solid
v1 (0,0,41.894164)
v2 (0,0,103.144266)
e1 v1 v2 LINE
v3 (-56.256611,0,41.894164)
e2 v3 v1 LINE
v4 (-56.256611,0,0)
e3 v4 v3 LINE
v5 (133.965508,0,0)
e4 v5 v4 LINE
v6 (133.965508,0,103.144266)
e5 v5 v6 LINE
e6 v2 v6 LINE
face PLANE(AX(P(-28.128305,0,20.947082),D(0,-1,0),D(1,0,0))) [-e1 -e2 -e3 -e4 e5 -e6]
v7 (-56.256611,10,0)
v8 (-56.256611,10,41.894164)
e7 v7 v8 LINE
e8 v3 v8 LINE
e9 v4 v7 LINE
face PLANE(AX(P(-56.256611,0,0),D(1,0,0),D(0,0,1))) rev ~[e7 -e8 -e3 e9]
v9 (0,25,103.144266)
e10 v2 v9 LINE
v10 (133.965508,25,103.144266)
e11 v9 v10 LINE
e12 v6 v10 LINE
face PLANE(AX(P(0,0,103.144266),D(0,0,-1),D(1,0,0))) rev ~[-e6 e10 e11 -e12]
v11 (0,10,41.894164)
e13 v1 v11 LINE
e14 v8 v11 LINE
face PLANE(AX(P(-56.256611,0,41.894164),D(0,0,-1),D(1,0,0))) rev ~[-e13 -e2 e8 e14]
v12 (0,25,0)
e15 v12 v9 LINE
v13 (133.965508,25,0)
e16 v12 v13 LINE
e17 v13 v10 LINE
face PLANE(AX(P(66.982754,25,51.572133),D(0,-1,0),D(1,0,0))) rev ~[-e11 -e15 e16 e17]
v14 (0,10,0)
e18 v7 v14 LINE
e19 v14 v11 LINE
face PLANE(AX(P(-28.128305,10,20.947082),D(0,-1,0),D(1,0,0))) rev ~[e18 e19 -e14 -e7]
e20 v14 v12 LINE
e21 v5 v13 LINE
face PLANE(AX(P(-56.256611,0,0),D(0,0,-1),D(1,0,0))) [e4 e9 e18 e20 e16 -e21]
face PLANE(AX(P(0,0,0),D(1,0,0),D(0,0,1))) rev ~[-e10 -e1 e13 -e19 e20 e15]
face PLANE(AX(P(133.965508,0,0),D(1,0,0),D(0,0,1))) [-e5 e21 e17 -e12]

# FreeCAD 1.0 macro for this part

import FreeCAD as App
import Part
import Sketcher

V = App.Vector
Q = App.Units.Quantity

doc = App.newDocument("Part")
body = doc.addObject("PartDesign::Body", "Body")

# Sketch on XZ plane
sketch1 = doc.addObject("Sketcher::SketchObject", "Sketch")
body.addObject(sketch1)
sketch1.AttachmentSupport = (doc.XZ_Plane, [""])
sketch1.MapMode = "FlatFace"
sketch1.addGeometry([
    Part.LineSegment(V(0, 103, 0), V(0, 0, 0)),
    Part.LineSegment(V(0, 0, 0), V(134, 0, 0)),
    Part.LineSegment(V(134, 0, 0), V(134, 103, 0)),
    Part.LineSegment(V(134, 103, 0), V(0, 103, 0)),
], False)
sketch1.addConstraint([
    Sketcher.Constraint("Coincident", 0, 2, 1, 1),
    Sketcher.Constraint("Coincident", 1, 2, 2, 1),
    Sketcher.Constraint("Coincident", 2, 2, 3, 1),
    Sketcher.Constraint("Coincident", 3, 2, 0, 1),
    Sketcher.Constraint("Vertical", 0),
    Sketcher.Constraint("Horizontal", 1),
    Sketcher.Constraint("Vertical", 2),
    Sketcher.Constraint("Horizontal", 3),
    Sketcher.Constraint("Coincident", 0, 2, -1, 1),
    Sketcher.Constraint("DistanceX", 1, 1, 1, 2, Q("133.965507 mm")),
    Sketcher.Constraint("DistanceY", 0, 2, 0, 1, Q("103.144266 mm")),
])
pad1 = doc.addObject("PartDesign::Pad", "Pad")
body.addObject(pad1)
pad1.Profile = sketch1
pad1.Length = 25
pad1.Reversed = True

# Sketch on XZ plane
sketch2 = doc.addObject("Sketcher::SketchObject", "Sketch001")
body.addObject(sketch2)
sketch2.AttachmentSupport = (doc.XZ_Plane, [""])
sketch2.MapMode = "FlatFace"
sketch2.addGeometry([
    Part.LineSegment(V(-56, 42, 0), V(-56, 0, 0)),
    Part.LineSegment(V(-56, 0, 0), V(0, 0, 0)),
    Part.LineSegment(V(0, 0, 0), V(0, 42, 0)),
    Part.LineSegment(V(0, 42, 0), V(-56, 42, 0)),
], False)
sketch2.addConstraint([
    Sketcher.Constraint("Coincident", 0, 2, 1, 1),
    Sketcher.Constraint("Coincident", 1, 2, 2, 1),
    Sketcher.Constraint("Coincident", 2, 2, 3, 1),
    Sketcher.Constraint("Coincident", 3, 2, 0, 1),
    Sketcher.Constraint("Vertical", 0),
    Sketcher.Constraint("Horizontal", 1),
    Sketcher.Constraint("Vertical", 2),
    Sketcher.Constraint("Horizontal", 3),
    Sketcher.Constraint("Coincident", 1, 2, -1, 1),
    Sketcher.Constraint("DistanceX", 1, 1, 1, 2, Q("56.256611 mm")),
    Sketcher.Constraint("DistanceY", 0, 2, 0, 1, Q("41.894164 mm")),
])
pad2 = doc.addObject("PartDesign::Pad", "Pad001")
body.addObject(pad2)
pad2.Profile = sketch2
pad2.Length = 10
pad2.Reversed = True

doc.recompute()
